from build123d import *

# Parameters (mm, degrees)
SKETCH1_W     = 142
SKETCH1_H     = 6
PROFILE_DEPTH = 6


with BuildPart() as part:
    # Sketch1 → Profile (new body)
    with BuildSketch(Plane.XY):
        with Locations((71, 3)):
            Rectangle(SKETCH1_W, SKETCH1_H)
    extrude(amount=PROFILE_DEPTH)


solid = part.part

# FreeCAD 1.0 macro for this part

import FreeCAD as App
import Part
import Sketcher
Q = App.Units.Quantity


def add_polygon(sketch, points):
    """Adds a closed chain of lines whose ends are joined by coincident constraints."""
    first, n = sketch.GeometryCount, len(points)
    for a, b in zip(points, points[1:] + points[:1]):
        sketch.addGeometry(Part.LineSegment(App.Vector(*a, 0), App.Vector(*b, 0)), False)
    for i in range(n):
        sketch.addConstraint(Sketcher.Constraint("Coincident", first + i, 2, first + (i + 1) % n, 1))

doc = App.newDocument("Part")
body = doc.addObject("PartDesign::Body", "Body")

# Sketch on XY plane
sketch1 = body.newObject("Sketcher::SketchObject", "Sketch")
sketch1.AttachmentSupport = (doc.getObject("XY_Plane"), [""])
sketch1.MapMode = "FlatFace"
add_polygon(sketch1, [(0, 6), (0, 0), (142, 0), (142, 6)])  # lines 0-3
sketch1.addConstraint(Sketcher.Constraint("Vertical", 0))
sketch1.addConstraint(Sketcher.Constraint("Horizontal", 1))
sketch1.addConstraint(Sketcher.Constraint("Vertical", 2))
sketch1.addConstraint(Sketcher.Constraint("Horizontal", 3))
sketch1.addConstraint(Sketcher.Constraint("Coincident", 0, 2, -1, 1))
sketch1.addConstraint(Sketcher.Constraint("DistanceX", 1, 1, 1, 2, Q("142 mm")))
sketch1.addConstraint(Sketcher.Constraint("DistanceY", 0, 2, 0, 1, Q("6 mm")))
pad1 = body.newObject("PartDesign::Pad", "Pad")
pad1.Profile = sketch1
pad1.Length = 6

doc.recompute()
